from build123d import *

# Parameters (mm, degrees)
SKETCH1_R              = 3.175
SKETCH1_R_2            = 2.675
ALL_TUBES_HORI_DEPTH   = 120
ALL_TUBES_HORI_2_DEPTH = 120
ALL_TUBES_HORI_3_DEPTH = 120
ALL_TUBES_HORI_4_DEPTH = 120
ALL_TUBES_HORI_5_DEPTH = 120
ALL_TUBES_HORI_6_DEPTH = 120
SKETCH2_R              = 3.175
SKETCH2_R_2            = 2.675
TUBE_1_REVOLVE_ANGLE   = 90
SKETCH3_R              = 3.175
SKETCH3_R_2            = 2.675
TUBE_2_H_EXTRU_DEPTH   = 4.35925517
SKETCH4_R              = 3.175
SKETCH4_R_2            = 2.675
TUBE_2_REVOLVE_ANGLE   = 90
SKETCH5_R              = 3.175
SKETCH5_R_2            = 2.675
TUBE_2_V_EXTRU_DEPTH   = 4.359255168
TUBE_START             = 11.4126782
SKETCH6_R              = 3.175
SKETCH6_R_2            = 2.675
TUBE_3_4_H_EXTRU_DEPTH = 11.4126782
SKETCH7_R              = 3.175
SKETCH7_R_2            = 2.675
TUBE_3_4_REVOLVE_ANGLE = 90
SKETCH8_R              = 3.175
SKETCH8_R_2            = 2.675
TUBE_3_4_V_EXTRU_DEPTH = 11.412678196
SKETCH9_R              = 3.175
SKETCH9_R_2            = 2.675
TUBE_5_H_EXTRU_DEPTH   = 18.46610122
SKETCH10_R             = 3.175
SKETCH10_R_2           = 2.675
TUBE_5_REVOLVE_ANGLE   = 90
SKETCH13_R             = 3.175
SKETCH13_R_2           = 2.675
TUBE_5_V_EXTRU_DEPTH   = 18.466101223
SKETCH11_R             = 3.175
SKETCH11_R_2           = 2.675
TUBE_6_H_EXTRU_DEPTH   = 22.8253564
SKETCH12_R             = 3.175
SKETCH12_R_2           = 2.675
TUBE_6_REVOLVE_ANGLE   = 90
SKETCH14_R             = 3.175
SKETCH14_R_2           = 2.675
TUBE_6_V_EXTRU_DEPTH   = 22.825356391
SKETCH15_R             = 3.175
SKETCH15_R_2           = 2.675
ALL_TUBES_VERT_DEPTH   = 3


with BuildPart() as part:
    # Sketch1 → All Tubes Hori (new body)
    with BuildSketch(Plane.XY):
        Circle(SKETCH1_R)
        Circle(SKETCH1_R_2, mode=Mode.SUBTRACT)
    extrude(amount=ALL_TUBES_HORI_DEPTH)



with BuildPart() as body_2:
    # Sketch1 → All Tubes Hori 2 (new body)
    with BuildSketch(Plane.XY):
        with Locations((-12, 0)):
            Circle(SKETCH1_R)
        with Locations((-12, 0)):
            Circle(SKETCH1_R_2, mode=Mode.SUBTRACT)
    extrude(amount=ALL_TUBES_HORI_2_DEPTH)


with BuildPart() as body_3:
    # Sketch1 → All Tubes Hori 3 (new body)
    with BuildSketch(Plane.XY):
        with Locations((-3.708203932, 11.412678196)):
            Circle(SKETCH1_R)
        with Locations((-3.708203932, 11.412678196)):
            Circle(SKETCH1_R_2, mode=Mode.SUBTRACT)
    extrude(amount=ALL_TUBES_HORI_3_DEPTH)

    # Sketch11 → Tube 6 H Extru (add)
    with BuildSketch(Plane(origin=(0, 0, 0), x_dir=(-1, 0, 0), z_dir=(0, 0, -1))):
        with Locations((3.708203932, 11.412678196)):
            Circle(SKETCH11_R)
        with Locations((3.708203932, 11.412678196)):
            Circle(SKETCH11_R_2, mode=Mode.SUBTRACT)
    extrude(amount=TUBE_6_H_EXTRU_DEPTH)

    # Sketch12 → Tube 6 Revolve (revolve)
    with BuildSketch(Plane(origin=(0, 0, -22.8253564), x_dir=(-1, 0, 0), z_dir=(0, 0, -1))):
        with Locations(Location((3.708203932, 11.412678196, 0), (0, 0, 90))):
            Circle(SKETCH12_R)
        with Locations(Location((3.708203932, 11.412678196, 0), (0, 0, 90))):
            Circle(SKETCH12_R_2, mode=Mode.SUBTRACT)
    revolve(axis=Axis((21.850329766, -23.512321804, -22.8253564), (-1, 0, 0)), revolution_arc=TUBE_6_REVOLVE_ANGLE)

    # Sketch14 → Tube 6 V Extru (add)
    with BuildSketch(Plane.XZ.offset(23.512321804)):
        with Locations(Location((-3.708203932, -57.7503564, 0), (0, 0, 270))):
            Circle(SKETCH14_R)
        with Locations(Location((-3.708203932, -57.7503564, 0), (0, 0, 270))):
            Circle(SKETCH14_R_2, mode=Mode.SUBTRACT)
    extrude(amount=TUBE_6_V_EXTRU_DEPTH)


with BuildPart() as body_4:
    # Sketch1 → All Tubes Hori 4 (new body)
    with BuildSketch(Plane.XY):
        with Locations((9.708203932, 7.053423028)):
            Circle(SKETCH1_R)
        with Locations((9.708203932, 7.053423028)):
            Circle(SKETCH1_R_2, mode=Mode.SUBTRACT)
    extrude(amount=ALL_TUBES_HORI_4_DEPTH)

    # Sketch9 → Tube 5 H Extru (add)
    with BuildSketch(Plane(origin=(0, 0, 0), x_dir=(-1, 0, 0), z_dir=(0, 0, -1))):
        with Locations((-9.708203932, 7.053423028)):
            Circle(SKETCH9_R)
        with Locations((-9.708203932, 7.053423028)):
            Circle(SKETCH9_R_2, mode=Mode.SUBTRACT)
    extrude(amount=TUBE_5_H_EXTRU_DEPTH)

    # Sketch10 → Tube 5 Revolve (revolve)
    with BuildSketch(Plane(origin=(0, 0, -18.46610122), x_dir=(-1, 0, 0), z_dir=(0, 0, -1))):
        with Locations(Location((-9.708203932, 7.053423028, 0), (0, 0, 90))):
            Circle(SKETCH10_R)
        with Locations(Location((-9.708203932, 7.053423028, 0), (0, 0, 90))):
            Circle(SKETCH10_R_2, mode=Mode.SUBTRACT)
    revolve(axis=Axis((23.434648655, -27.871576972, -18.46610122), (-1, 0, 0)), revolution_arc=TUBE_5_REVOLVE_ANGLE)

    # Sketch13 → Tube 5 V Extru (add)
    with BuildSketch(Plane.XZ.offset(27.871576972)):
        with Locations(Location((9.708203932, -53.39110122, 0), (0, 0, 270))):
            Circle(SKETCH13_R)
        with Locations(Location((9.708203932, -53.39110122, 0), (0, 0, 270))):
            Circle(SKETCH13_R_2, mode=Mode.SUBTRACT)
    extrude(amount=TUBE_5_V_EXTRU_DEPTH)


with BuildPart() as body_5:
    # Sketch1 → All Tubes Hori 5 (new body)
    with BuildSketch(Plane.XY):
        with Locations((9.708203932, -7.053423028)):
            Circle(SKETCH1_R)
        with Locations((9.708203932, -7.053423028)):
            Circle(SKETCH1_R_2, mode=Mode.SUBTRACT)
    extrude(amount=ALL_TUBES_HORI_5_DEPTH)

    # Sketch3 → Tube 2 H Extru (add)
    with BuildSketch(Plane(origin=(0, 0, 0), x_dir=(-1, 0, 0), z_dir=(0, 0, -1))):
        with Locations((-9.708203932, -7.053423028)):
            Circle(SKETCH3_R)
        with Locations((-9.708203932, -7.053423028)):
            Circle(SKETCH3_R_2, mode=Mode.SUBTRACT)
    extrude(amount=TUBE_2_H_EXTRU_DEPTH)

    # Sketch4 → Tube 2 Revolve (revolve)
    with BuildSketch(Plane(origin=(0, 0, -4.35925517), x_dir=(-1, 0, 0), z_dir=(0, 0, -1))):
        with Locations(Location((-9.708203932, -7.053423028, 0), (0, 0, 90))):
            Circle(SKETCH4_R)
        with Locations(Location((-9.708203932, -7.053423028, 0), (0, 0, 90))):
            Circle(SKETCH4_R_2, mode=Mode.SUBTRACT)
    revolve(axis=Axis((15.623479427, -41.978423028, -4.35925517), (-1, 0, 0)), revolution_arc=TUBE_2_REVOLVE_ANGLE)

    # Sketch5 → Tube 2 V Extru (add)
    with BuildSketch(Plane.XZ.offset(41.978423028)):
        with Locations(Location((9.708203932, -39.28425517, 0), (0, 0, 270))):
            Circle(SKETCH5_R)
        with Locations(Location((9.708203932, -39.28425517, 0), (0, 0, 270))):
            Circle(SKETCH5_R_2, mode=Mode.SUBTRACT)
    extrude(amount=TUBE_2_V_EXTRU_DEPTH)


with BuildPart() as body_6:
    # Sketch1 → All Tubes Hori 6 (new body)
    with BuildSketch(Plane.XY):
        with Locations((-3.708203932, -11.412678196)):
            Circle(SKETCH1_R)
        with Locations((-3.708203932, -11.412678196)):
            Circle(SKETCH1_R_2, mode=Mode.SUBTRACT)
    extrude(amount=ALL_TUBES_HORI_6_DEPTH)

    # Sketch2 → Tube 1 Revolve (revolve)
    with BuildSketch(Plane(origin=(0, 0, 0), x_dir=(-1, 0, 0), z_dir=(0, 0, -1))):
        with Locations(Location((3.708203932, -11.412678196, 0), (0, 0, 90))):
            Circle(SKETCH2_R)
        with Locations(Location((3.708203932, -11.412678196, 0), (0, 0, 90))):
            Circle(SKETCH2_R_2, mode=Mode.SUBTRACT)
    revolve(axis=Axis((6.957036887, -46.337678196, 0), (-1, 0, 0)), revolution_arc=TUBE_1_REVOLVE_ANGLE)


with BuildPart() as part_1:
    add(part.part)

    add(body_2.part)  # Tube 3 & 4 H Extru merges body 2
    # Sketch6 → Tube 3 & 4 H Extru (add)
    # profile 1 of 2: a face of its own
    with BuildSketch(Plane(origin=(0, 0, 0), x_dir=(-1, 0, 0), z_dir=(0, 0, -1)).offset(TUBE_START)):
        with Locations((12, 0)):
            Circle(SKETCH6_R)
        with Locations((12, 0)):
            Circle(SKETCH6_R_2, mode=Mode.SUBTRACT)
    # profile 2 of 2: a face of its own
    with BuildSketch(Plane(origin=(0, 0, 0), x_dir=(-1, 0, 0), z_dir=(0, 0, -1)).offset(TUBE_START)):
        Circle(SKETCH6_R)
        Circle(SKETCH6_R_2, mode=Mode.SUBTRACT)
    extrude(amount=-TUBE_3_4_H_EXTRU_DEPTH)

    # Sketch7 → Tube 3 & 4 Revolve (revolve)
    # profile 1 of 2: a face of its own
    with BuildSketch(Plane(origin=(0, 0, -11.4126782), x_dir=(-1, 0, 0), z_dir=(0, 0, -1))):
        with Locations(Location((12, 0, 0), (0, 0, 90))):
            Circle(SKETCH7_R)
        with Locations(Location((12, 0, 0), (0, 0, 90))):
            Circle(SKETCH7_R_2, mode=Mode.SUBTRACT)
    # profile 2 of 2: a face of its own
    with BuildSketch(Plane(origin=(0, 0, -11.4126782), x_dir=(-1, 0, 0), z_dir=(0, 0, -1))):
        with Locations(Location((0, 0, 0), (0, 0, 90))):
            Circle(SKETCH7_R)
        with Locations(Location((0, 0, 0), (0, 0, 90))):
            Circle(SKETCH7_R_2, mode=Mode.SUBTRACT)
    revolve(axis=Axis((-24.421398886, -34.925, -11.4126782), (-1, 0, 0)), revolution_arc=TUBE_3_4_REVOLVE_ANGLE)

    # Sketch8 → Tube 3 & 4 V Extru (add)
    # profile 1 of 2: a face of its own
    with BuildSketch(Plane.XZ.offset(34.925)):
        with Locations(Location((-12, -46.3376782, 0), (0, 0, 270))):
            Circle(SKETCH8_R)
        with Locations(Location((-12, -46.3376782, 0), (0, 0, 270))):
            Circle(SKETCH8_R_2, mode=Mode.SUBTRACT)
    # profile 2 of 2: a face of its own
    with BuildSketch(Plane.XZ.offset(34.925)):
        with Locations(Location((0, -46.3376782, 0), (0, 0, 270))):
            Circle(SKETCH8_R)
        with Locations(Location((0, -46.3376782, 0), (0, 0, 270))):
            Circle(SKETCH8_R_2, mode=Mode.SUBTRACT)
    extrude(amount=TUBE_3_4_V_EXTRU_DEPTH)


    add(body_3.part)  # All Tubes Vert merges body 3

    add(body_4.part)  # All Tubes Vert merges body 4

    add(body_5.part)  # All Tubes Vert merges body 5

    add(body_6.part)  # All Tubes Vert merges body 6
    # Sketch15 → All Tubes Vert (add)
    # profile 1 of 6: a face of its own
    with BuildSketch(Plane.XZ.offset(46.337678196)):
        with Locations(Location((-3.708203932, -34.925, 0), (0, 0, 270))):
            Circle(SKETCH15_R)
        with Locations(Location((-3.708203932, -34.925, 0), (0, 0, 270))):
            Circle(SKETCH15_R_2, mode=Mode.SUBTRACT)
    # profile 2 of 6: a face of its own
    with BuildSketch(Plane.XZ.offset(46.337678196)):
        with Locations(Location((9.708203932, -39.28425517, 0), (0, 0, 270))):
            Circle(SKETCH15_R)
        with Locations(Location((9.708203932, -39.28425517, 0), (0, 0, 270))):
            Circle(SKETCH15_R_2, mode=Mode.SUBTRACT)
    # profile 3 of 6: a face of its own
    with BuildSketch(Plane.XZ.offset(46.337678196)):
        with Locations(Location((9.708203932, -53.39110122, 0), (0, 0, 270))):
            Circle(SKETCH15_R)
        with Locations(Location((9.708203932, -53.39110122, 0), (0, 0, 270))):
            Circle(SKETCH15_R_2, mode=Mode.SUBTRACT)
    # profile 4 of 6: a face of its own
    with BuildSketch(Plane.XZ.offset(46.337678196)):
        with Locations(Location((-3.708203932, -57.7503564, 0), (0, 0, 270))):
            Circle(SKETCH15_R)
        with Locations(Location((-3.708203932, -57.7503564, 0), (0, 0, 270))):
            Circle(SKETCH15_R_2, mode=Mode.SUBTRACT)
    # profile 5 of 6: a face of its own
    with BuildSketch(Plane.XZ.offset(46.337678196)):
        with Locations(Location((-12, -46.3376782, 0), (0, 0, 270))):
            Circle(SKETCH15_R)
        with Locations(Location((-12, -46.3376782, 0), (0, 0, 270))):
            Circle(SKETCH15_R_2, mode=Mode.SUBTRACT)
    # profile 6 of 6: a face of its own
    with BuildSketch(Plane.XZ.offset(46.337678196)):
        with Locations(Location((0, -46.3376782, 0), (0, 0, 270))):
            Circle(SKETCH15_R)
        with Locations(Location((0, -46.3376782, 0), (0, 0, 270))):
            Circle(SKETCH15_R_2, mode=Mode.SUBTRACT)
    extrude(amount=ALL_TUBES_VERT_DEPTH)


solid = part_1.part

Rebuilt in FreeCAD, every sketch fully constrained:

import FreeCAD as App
import Part
import Sketcher
from FreeCAD import Vector

doc = App.newDocument("Part")
body = doc.addObject("PartDesign::Body", "Body")

sketch1 = body.newObject("Sketcher::SketchObject", "Sketch")
sketch1.AttachmentSupport = (doc.getObject("XY_Plane"), [""])
sketch1.MapMode = "FlatFace"
sketch1.addGeometry([
    Part.Circle(Vector(0, 0, 0), Vector(0, 0, 1), 3.2),
    Part.Circle(Vector(0, 0, 0), Vector(0, 0, 1), 2.7),
], False)
sketch1.addConstraint([
    Sketcher.Constraint("Coincident", 0, 3, -1, 1),
    Sketcher.Constraint("Coincident", 1, 3, -1, 1),
    Sketcher.Constraint("Diameter", 0, 6.35),
    Sketcher.Constraint("Diameter", 1, 5.35),
])
pad1 = body.newObject("PartDesign::Pad", "Pad")
pad1.Profile = sketch1
pad1.Length = 120
body2 = doc.addObject("PartDesign::Body", "Body001")

sketch2 = body2.newObject("Sketcher::SketchObject", "Sketch001")
sketch2.AttachmentSupport = (doc.getObject("XY_Plane001"), [""])
sketch2.MapMode = "FlatFace"
sketch2.addGeometry([
    Part.Circle(Vector(-12, 0, 0), Vector(0, 0, 1), 3.2),
    Part.Circle(Vector(-12, 0, 0), Vector(0, 0, 1), 2.7),
], False)
sketch2.addConstraint([
    Sketcher.Constraint("Coincident", 1, 3, 0, 3),
    Sketcher.Constraint("PointOnObject", 0, 3, -1),
    Sketcher.Constraint("Diameter", 0, 6.35),
    Sketcher.Constraint("Diameter", 1, 5.35),
    Sketcher.Constraint("DistanceX", 0, 3, -1, 1, 12.0),
])
pad2 = body2.newObject("PartDesign::Pad", "Pad001")
pad2.Profile = sketch2
pad2.Length = 120
body3 = doc.addObject("PartDesign::Body", "Body002")

sketch3 = body3.newObject("Sketcher::SketchObject", "Sketch002")
sketch3.AttachmentSupport = (doc.getObject("XY_Plane002"), [""])
sketch3.MapMode = "FlatFace"
sketch3.addGeometry([
    Part.Circle(Vector(-3.7, 11.4, 0), Vector(0, 0, 1), 3.2),
    Part.Circle(Vector(-3.7, 11.4, 0), Vector(0, 0, 1), 2.7),
], False)
sketch3.addConstraint([
    Sketcher.Constraint("Coincident", 1, 3, 0, 3),
    Sketcher.Constraint("Diameter", 0, 6.35),
    Sketcher.Constraint("Diameter", 1, 5.35),
    Sketcher.Constraint("DistanceY", -1, 1, 0, 3, 11.412678),
    Sketcher.Constraint("DistanceX", 0, 3, -1, 1, 3.708204),
])
pad3 = body3.newObject("PartDesign::Pad", "Pad002")
pad3.Profile = sketch3
pad3.Length = 120

sketch4 = body3.newObject("Sketcher::SketchObject", "Sketch003")
sketch4.AttachmentSupport = (doc.getObject("XY_Plane002"), [""])
sketch4.MapMode = "FlatFace"
sketch4.addGeometry([
    Part.Circle(Vector(-3.7, 11.4, 0), Vector(0, 0, 1), 3.2),
    Part.Circle(Vector(-3.7, 11.4, 0), Vector(0, 0, 1), 2.7),
], False)
sketch4.addConstraint([
    Sketcher.Constraint("Coincident", 1, 3, 0, 3),
    Sketcher.Constraint("Diameter", 0, 6.35),
    Sketcher.Constraint("Diameter", 1, 5.35),
    Sketcher.Constraint("DistanceY", -1, 1, 0, 3, 11.412678),
    Sketcher.Constraint("DistanceX", 0, 3, -1, 1, 3.708204),
])
pad4 = body3.newObject("PartDesign::Pad", "Pad003")
pad4.Profile = sketch4
pad4.Length = 22.825356
pad4.Reversed = True

sketch5 = body3.newObject("Sketcher::SketchObject", "Sketch004")
sketch5.AttachmentSupport = (doc.getObject("XY_Plane002"), [""])
sketch5.MapMode = "FlatFace"
sketch5.AttachmentOffset = App.Placement(Vector(0, 0, -22.825356), App.Rotation())
sketch5.addGeometry([
    Part.Circle(Vector(-3.7, 11.4, 0), Vector(0, 0, 1), 3.2),
    Part.Circle(Vector(-3.7, 11.4, 0), Vector(0, 0, 1), 2.7),
], False)
sketch5.addGeometry(Part.LineSegment(Vector(-3.7, -23.5, 0), Vector(-13.7, -23.5, 0)), True)
sketch5.addConstraint([
    Sketcher.Constraint("Horizontal", 2),
    Sketcher.Constraint("Coincident", 1, 3, 0, 3),
    Sketcher.Constraint("Vertical", 1, 3, 2, 1),
    Sketcher.Constraint("Diameter", 0, 6.35),
    Sketcher.Constraint("Diameter", 1, 5.35),
    Sketcher.Constraint("DistanceX", 2, 2, 2, 1, 10.0),
    Sketcher.Constraint("DistanceY", 2, 1, 0, 3, 34.925),
    Sketcher.Constraint("DistanceY", -1, 1, 0, 3, 11.412678),
    Sketcher.Constraint("DistanceX", 0, 3, -1, 1, 3.708204),
])
revolution = body3.newObject("PartDesign::Revolution", "Revolution")
revolution.Profile = sketch5
revolution.ReferenceAxis = (sketch5, ["Axis0"])
revolution.Angle = 90

sketch6 = body3.newObject("Sketcher::SketchObject", "Sketch005")
sketch6.AttachmentSupport = (doc.getObject("XZ_Plane002"), [""])
sketch6.MapMode = "FlatFace"
sketch6.AttachmentOffset = App.Placement(Vector(0, 0, 23.512322), App.Rotation())
sketch6.addGeometry([
    Part.Circle(Vector(-3.7, -57.8, 0), Vector(0, 0, 1), 3.2),
    Part.Circle(Vector(-3.7, -57.8, 0), Vector(0, 0, 1), 2.7),
], False)
sketch6.addConstraint([
    Sketcher.Constraint("Coincident", 1, 3, 0, 3),
    Sketcher.Constraint("Diameter", 0, 6.35),
    Sketcher.Constraint("Diameter", 1, 5.35),
    Sketcher.Constraint("DistanceX", 0, 3, -1, 1, 3.708204),
    Sketcher.Constraint("DistanceY", 0, 3, -1, 1, 57.750356),
])
pad5 = body3.newObject("PartDesign::Pad", "Pad004")
pad5.Profile = sketch6
pad5.Length = 22.825356
body4 = doc.addObject("PartDesign::Body", "Body003")

sketch7 = body4.newObject("Sketcher::SketchObject", "Sketch006")
sketch7.AttachmentSupport = (doc.getObject("XY_Plane003"), [""])
sketch7.MapMode = "FlatFace"
sketch7.addGeometry([
    Part.Circle(Vector(9.7, 7.1, 0), Vector(0, 0, 1), 3.2),
    Part.Circle(Vector(9.7, 7.1, 0), Vector(0, 0, 1), 2.7),
], False)
sketch7.addConstraint([
    Sketcher.Constraint("Coincident", 1, 3, 0, 3),
    Sketcher.Constraint("Diameter", 0, 6.35),
    Sketcher.Constraint("Diameter", 1, 5.35),
    Sketcher.Constraint("DistanceX", -1, 1, 0, 3, 9.708204),
    Sketcher.Constraint("DistanceY", -1, 1, 0, 3, 7.053423),
])
pad6 = body4.newObject("PartDesign::Pad", "Pad005")
pad6.Profile = sketch7
pad6.Length = 120

sketch8 = body4.newObject("Sketcher::SketchObject", "Sketch007")
sketch8.AttachmentSupport = (doc.getObject("XY_Plane003"), [""])
sketch8.MapMode = "FlatFace"
sketch8.addGeometry([
    Part.Circle(Vector(9.7, 7.1, 0), Vector(0, 0, 1), 3.2),
    Part.Circle(Vector(9.7, 7.1, 0), Vector(0, 0, 1), 2.7),
], False)
sketch8.addConstraint([
    Sketcher.Constraint("Coincident", 1, 3, 0, 3),
    Sketcher.Constraint("Diameter", 0, 6.35),
    Sketcher.Constraint("Diameter", 1, 5.35),
    Sketcher.Constraint("DistanceX", -1, 1, 0, 3, 9.708204),
    Sketcher.Constraint("DistanceY", -1, 1, 0, 3, 7.053423),
])
pad7 = body4.newObject("PartDesign::Pad", "Pad006")
pad7.Profile = sketch8
pad7.Length = 18.466101
pad7.Reversed = True

sketch9 = body4.newObject("Sketcher::SketchObject", "Sketch008")
sketch9.AttachmentSupport = (doc.getObject("XY_Plane003"), [""])
sketch9.MapMode = "FlatFace"
sketch9.AttachmentOffset = App.Placement(Vector(0, 0, -18.466101), App.Rotation())
sketch9.addGeometry([
    Part.Circle(Vector(9.7, 7.1, 0), Vector(0, 0, 1), 3.2),
    Part.Circle(Vector(9.7, 7.1, 0), Vector(0, 0, 1), 2.7),
], False)
sketch9.addGeometry(Part.LineSegment(Vector(9.7, -27.9, 0), Vector(-0.3, -27.9, 0)), True)
sketch9.addConstraint([
    Sketcher.Constraint("Horizontal", 2),
    Sketcher.Constraint("Coincident", 1, 3, 0, 3),
    Sketcher.Constraint("Vertical", 1, 3, 2, 1),
    Sketcher.Constraint("Diameter", 0, 6.35),
    Sketcher.Constraint("Diameter", 1, 5.35),
    Sketcher.Constraint("DistanceX", 2, 2, 2, 1, 10.0),
    Sketcher.Constraint("DistanceY", 2, 1, 0, 3, 34.925),
    Sketcher.Constraint("DistanceX", -1, 1, 0, 3, 9.708204),
    Sketcher.Constraint("DistanceY", -1, 1, 0, 3, 7.053423),
])
revolution2 = body4.newObject("PartDesign::Revolution", "Revolution001")
revolution2.Profile = sketch9
revolution2.ReferenceAxis = (sketch9, ["Axis0"])
revolution2.Angle = 90

sketch10 = body4.newObject("Sketcher::SketchObject", "Sketch009")
sketch10.AttachmentSupport = (doc.getObject("XZ_Plane003"), [""])
sketch10.MapMode = "FlatFace"
sketch10.AttachmentOffset = App.Placement(Vector(0, 0, 27.871577), App.Rotation())
sketch10.addGeometry([
    Part.Circle(Vector(9.7, -53.4, 0), Vector(0, 0, 1), 3.2),
    Part.Circle(Vector(9.7, -53.4, 0), Vector(0, 0, 1), 2.7),
], False)
sketch10.addConstraint([
    Sketcher.Constraint("Coincident", 1, 3, 0, 3),
    Sketcher.Constraint("Diameter", 0, 6.35),
    Sketcher.Constraint("Diameter", 1, 5.35),
    Sketcher.Constraint("DistanceY", 0, 3, -1, 1, 53.391101),
    Sketcher.Constraint("DistanceX", -1, 1, 0, 3, 9.708204),
])
pad8 = body4.newObject("PartDesign::Pad", "Pad007")
pad8.Profile = sketch10
pad8.Length = 18.466101
body5 = doc.addObject("PartDesign::Body", "Body004")

sketch11 = body5.newObject("Sketcher::SketchObject", "Sketch010")
sketch11.AttachmentSupport = (doc.getObject("XY_Plane004"), [""])
sketch11.MapMode = "FlatFace"
sketch11.addGeometry([
    Part.Circle(Vector(9.7, -7.1, 0), Vector(0, 0, 1), 3.2),
    Part.Circle(Vector(9.7, -7.1, 0), Vector(0, 0, 1), 2.7),
], False)
sketch11.addConstraint([
    Sketcher.Constraint("Coincident", 1, 3, 0, 3),
    Sketcher.Constraint("Diameter", 0, 6.35),
    Sketcher.Constraint("Diameter", 1, 5.35),
    Sketcher.Constraint("DistanceX", -1, 1, 0, 3, 9.708204),
    Sketcher.Constraint("DistanceY", 0, 3, -1, 1, 7.053423),
])
pad9 = body5.newObject("PartDesign::Pad", "Pad008")
pad9.Profile = sketch11
pad9.Length = 120

sketch12 = body5.newObject("Sketcher::SketchObject", "Sketch011")
sketch12.AttachmentSupport = (doc.getObject("XY_Plane004"), [""])
sketch12.MapMode = "FlatFace"
sketch12.addGeometry([
    Part.Circle(Vector(9.7, -7.1, 0), Vector(0, 0, 1), 3.2),
    Part.Circle(Vector(9.7, -7.1, 0), Vector(0, 0, 1), 2.7),
], False)
sketch12.addConstraint([
    Sketcher.Constraint("Coincident", 1, 3, 0, 3),
    Sketcher.Constraint("Diameter", 0, 6.35),
    Sketcher.Constraint("Diameter", 1, 5.35),
    Sketcher.Constraint("DistanceX", -1, 1, 0, 3, 9.708204),
    Sketcher.Constraint("DistanceY", 0, 3, -1, 1, 7.053423),
])
pad10 = body5.newObject("PartDesign::Pad", "Pad009")
pad10.Profile = sketch12
pad10.Length = 4.359255
pad10.Reversed = True

sketch13 = body5.newObject("Sketcher::SketchObject", "Sketch012")
sketch13.AttachmentSupport = (doc.getObject("XY_Plane004"), [""])
sketch13.MapMode = "FlatFace"
sketch13.AttachmentOffset = App.Placement(Vector(0, 0, -4.359255), App.Rotation())
sketch13.addGeometry([
    Part.Circle(Vector(9.7, -7.1, 0), Vector(0, 0, 1), 3.2),
    Part.Circle(Vector(9.7, -7.1, 0), Vector(0, 0, 1), 2.7),
], False)
sketch13.addGeometry(Part.LineSegment(Vector(9.7, -42, 0), Vector(-0.3, -42, 0)), True)
sketch13.addConstraint([
    Sketcher.Constraint("Horizontal", 2),
    Sketcher.Constraint("Coincident", 1, 3, 0, 3),
    Sketcher.Constraint("Vertical", 1, 3, 2, 1),
    Sketcher.Constraint("Diameter", 0, 6.35),
    Sketcher.Constraint("Diameter", 1, 5.35),
    Sketcher.Constraint("DistanceX", 2, 2, 2, 1, 10.0),
    Sketcher.Constraint("DistanceY", 2, 1, 0, 3, 34.925),
    Sketcher.Constraint("DistanceX", -1, 1, 0, 3, 9.708204),
    Sketcher.Constraint("DistanceY", 0, 3, -1, 1, 7.053423),
])
revolution3 = body5.newObject("PartDesign::Revolution", "Revolution002")
revolution3.Profile = sketch13
revolution3.ReferenceAxis = (sketch13, ["Axis0"])
revolution3.Angle = 90

sketch14 = body5.newObject("Sketcher::SketchObject", "Sketch013")
sketch14.AttachmentSupport = (doc.getObject("XZ_Plane004"), [""])
sketch14.MapMode = "FlatFace"
sketch14.AttachmentOffset = App.Placement(Vector(0, 0, 41.978423), App.Rotation())
sketch14.addGeometry([
    Part.Circle(Vector(9.7, -39.3, 0), Vector(0, 0, 1), 3.2),
    Part.Circle(Vector(9.7, -39.3, 0), Vector(0, 0, 1), 2.7),
], False)
sketch14.addConstraint([
    Sketcher.Constraint("Coincident", 1, 3, 0, 3),
    Sketcher.Constraint("Diameter", 0, 6.35),
    Sketcher.Constraint("Diameter", 1, 5.35),
    Sketcher.Constraint("DistanceX", -1, 1, 0, 3, 9.708204),
    Sketcher.Constraint("DistanceY", 0, 3, -1, 1, 39.284255),
])
pad11 = body5.newObject("PartDesign::Pad", "Pad010")
pad11.Profile = sketch14
pad11.Length = 4.359255
body6 = doc.addObject("PartDesign::Body", "Body005")

sketch15 = body6.newObject("Sketcher::SketchObject", "Sketch014")
sketch15.AttachmentSupport = (doc.getObject("XY_Plane005"), [""])
sketch15.MapMode = "FlatFace"
sketch15.addGeometry([
    Part.Circle(Vector(-3.7, -11.4, 0), Vector(0, 0, 1), 3.2),
    Part.Circle(Vector(-3.7, -11.4, 0), Vector(0, 0, 1), 2.7),
], False)
sketch15.addConstraint([
    Sketcher.Constraint("Coincident", 1, 3, 0, 3),
    Sketcher.Constraint("Diameter", 0, 6.35),
    Sketcher.Constraint("Diameter", 1, 5.35),
    Sketcher.Constraint("DistanceY", 0, 3, -1, 1, 11.412678),
    Sketcher.Constraint("DistanceX", 0, 3, -1, 1, 3.708204),
])
pad12 = body6.newObject("PartDesign::Pad", "Pad011")
pad12.Profile = sketch15
pad12.Length = 120

sketch16 = body6.newObject("Sketcher::SketchObject", "Sketch015")
sketch16.AttachmentSupport = (doc.getObject("XY_Plane005"), [""])
sketch16.MapMode = "FlatFace"
sketch16.addGeometry([
    Part.Circle(Vector(-3.7, -11.4, 0), Vector(0, 0, 1), 3.2),
    Part.Circle(Vector(-3.7, -11.4, 0), Vector(0, 0, 1), 2.7),
], False)
sketch16.addGeometry(Part.LineSegment(Vector(-3.7, -46.3, 0), Vector(-13.7, -46.3, 0)), True)
sketch16.addConstraint([
    Sketcher.Constraint("Horizontal", 2),
    Sketcher.Constraint("Coincident", 1, 3, 0, 3),
    Sketcher.Constraint("Vertical", 1, 3, 2, 1),
    Sketcher.Constraint("Diameter", 0, 6.35),
    Sketcher.Constraint("Diameter", 1, 5.35),
    Sketcher.Constraint("DistanceX", 2, 2, 2, 1, 10.0),
    Sketcher.Constraint("DistanceY", 2, 1, 0, 3, 34.925),
    Sketcher.Constraint("DistanceY", 0, 3, -1, 1, 11.412678),
    Sketcher.Constraint("DistanceX", 0, 3, -1, 1, 3.708204),
])
revolution4 = body6.newObject("PartDesign::Revolution", "Revolution003")
revolution4.Profile = sketch16
revolution4.ReferenceAxis = (sketch16, ["Axis0"])
revolution4.Angle = 90
body.AllowCompound = True
doc.recompute()

boolean = body.newObject("PartDesign::Boolean", "Boolean")
boolean.Type = "Fuse"
boolean.addObjects([body2])

sketch17 = body.newObject("Sketcher::SketchObject", "Sketch016")
sketch17.AttachmentSupport = (doc.getObject("XY_Plane"), [""])
sketch17.MapMode = "FlatFace"
sketch17.AttachmentOffset = App.Placement(Vector(0, 0, -11.412678), App.Rotation())
sketch17.addGeometry([
    Part.Circle(Vector(-12, 0, 0), Vector(0, 0, 1), 3.2),
    Part.Circle(Vector(-12, 0, 0), Vector(0, 0, 1), 2.7),
    Part.Circle(Vector(0, 0, 0), Vector(0, 0, 1), 3.2),
    Part.Circle(Vector(0, 0, 0), Vector(0, 0, 1), 2.7),
], False)
sketch17.addConstraint([
    Sketcher.Constraint("Coincident", 2, 3, -1, 1),
    Sketcher.Constraint("Coincident", 3, 3, -1, 1),
    Sketcher.Constraint("Coincident", 1, 3, 0, 3),
    Sketcher.Constraint("Equal", 0, 2),
    Sketcher.Constraint("Equal", 1, 3),
    Sketcher.Constraint("PointOnObject", 0, 3, -1),
    Sketcher.Constraint("Diameter", 0, 6.35),
    Sketcher.Constraint("Diameter", 1, 5.35),
    Sketcher.Constraint("DistanceX", 0, 3, -1, 1, 12.0),
])
pad13 = body.newObject("PartDesign::Pad", "Pad012")
pad13.Profile = sketch17
pad13.Length = 11.412678

sketch18 = body.newObject("Sketcher::SketchObject", "Sketch017")
sketch18.AttachmentSupport = (doc.getObject("XY_Plane"), [""])
sketch18.MapMode = "FlatFace"
sketch18.AttachmentOffset = App.Placement(Vector(0, 0, -11.412678), App.Rotation())
sketch18.addGeometry([
    Part.Circle(Vector(-12, 0, 0), Vector(0, 0, 1), 3.2),
    Part.Circle(Vector(-12, 0, 0), Vector(0, 0, 1), 2.7),
    Part.Circle(Vector(0, 0, 0), Vector(0, 0, 1), 3.2),
    Part.Circle(Vector(0, 0, 0), Vector(0, 0, 1), 2.7),
], False)
sketch18.addGeometry(Part.LineSegment(Vector(0, -34.9, 0), Vector(-12, -34.9, 0)), True)
sketch18.addConstraint([
    Sketcher.Constraint("Horizontal", 4),
    Sketcher.Constraint("Coincident", 2, 3, -1, 1),
    Sketcher.Constraint("Coincident", 3, 3, -1, 1),
    Sketcher.Constraint("Coincident", 1, 3, 0, 3),
    Sketcher.Constraint("Equal", 0, 2),
    Sketcher.Constraint("Equal", 1, 3),
    Sketcher.Constraint("PointOnObject", 0, 3, -1),
    Sketcher.Constraint("PointOnObject", 4, 1, -2),
    Sketcher.Constraint("Vertical", 1, 3, 4, 2),
    Sketcher.Constraint("Diameter", 0, 6.35),
    Sketcher.Constraint("Diameter", 1, 5.35),
    Sketcher.Constraint("DistanceX", 4, 2, 4, 1, 12.0),
    Sketcher.Constraint("DistanceY", 4, 1, -1, 1, 34.925),
])
revolution5 = body.newObject("PartDesign::Revolution", "Revolution004")
revolution5.Profile = sketch18
revolution5.ReferenceAxis = (sketch18, ["Axis0"])
revolution5.Angle = 90

sketch19 = body.newObject("Sketcher::SketchObject", "Sketch018")
sketch19.AttachmentSupport = (doc.getObject("XZ_Plane"), [""])
sketch19.MapMode = "FlatFace"
sketch19.AttachmentOffset = App.Placement(Vector(0, 0, 34.925), App.Rotation())
sketch19.addGeometry([
    Part.Circle(Vector(-12, -46.3, 0), Vector(0, 0, 1), 3.2),
    Part.Circle(Vector(-12, -46.3, 0), Vector(0, 0, 1), 2.7),
    Part.Circle(Vector(0, -46.3, 0), Vector(0, 0, 1), 3.2),
    Part.Circle(Vector(0, -46.3, 0), Vector(0, 0, 1), 2.7),
], False)
sketch19.addConstraint([
    Sketcher.Constraint("Coincident", 1, 3, 0, 3),
    Sketcher.Constraint("Coincident", 3, 3, 2, 3),
    Sketcher.Constraint("Equal", 0, 2),
    Sketcher.Constraint("Equal", 1, 3),
    Sketcher.Constraint("PointOnObject", 2, 3, -2),
    Sketcher.Constraint("Horizontal", 1, 3, 2, 3),
    Sketcher.Constraint("Diameter", 0, 6.35),
    Sketcher.Constraint("Diameter", 1, 5.35),
    Sketcher.Constraint("DistanceX", 0, 3, -1, 1, 12.0),
    Sketcher.Constraint("DistanceY", 0, 3, -1, 1, 46.337678),
])
pad14 = body.newObject("PartDesign::Pad", "Pad013")
pad14.Profile = sketch19
pad14.Length = 11.412678
doc.recompute()

boolean2 = body.newObject("PartDesign::Boolean", "Boolean001")
boolean2.Type = "Fuse"
boolean2.addObjects([body3])
doc.recompute()

boolean3 = body.newObject("PartDesign::Boolean", "Boolean002")
boolean3.Type = "Fuse"
boolean3.addObjects([body4])
doc.recompute()

boolean4 = body.newObject("PartDesign::Boolean", "Boolean003")
boolean4.Type = "Fuse"
boolean4.addObjects([body5])
doc.recompute()

boolean5 = body.newObject("PartDesign::Boolean", "Boolean004")
boolean5.Type = "Fuse"
boolean5.addObjects([body6])

sketch20 = body.newObject("Sketcher::SketchObject", "Sketch019")
sketch20.AttachmentSupport = (doc.getObject("XZ_Plane"), [""])
sketch20.MapMode = "FlatFace"
sketch20.AttachmentOffset = App.Placement(Vector(0, 0, 46.337678), App.Rotation())
sketch20.addGeometry([
    Part.Circle(Vector(-3.7, -34.9, 0), Vector(0, 0, 1), 3.2),
    Part.Circle(Vector(-3.7, -34.9, 0), Vector(0, 0, 1), 2.7),
    Part.Circle(Vector(9.7, -39.3, 0), Vector(0, 0, 1), 3.2),
    Part.Circle(Vector(9.7, -39.3, 0), Vector(0, 0, 1), 2.7),
    Part.Circle(Vector(9.7, -53.4, 0), Vector(0, 0, 1), 3.2),
    Part.Circle(Vector(9.7, -53.4, 0), Vector(0, 0, 1), 2.7),
    Part.Circle(Vector(-3.7, -57.8, 0), Vector(0, 0, 1), 3.2),
    Part.Circle(Vector(-3.7, -57.8, 0), Vector(0, 0, 1), 2.7),
    Part.Circle(Vector(-12, -46.3, 0), Vector(0, 0, 1), 3.2),
    Part.Circle(Vector(-12, -46.3, 0), Vector(0, 0, 1), 2.7),
    Part.Circle(Vector(0, -46.3, 0), Vector(0, 0, 1), 3.2),
    Part.Circle(Vector(0, -46.3, 0), Vector(0, 0, 1), 2.7),
], False)
sketch20.addConstraint([
    Sketcher.Constraint("Coincident", 1, 3, 0, 3),
    Sketcher.Constraint("Coincident", 3, 3, 2, 3),
    Sketcher.Constraint("Coincident", 5, 3, 4, 3),
    Sketcher.Constraint("Coincident", 7, 3, 6, 3),
    Sketcher.Constraint("Coincident", 9, 3, 8, 3),
    Sketcher.Constraint("Coincident", 11, 3, 10, 3),
    Sketcher.Constraint("Equal", 0, 2),
    Sketcher.Constraint("Equal", 1, 3),
    Sketcher.Constraint("Equal", 2, 4),
    Sketcher.Constraint("Equal", 3, 5),
    Sketcher.Constraint("Equal", 4, 6),
    Sketcher.Constraint("Equal", 5, 7),
    Sketcher.Constraint("Equal", 6, 8),
    Sketcher.Constraint("Equal", 7, 9),
    Sketcher.Constraint("Equal", 8, 10),
    Sketcher.Constraint("Equal", 9, 11),
    Sketcher.Constraint("PointOnObject", 10, 3, -2),
    Sketcher.Constraint("Horizontal", 9, 3, 10, 3),
    Sketcher.Constraint("Vertical", 3, 3, 4, 3),
    Sketcher.Constraint("Vertical", 1, 3, 6, 3),
    Sketcher.Constraint("Diameter", 0, 6.35),
    Sketcher.Constraint("Diameter", 1, 5.35),
    Sketcher.Constraint("DistanceX", 8, 3, -1, 1, 12.0),
    Sketcher.Constraint("DistanceY", 0, 3, -1, 1, 34.925),
    Sketcher.Constraint("DistanceY", 4, 3, -1, 1, 53.391101),
    Sketcher.Constraint("DistanceY", 6, 3, 2, 3, 18.466101),
    Sketcher.Constraint("DistanceY", 8, 3, -1, 1, 46.337678),
    Sketcher.Constraint("DistanceY", 6, 3, 8, 3, 11.412678),
    Sketcher.Constraint("DistanceX", 0, 3, -1, 1, 3.708204),
    Sketcher.Constraint("DistanceX", -1, 1, 2, 3, 9.708204),
])
pad15 = body.newObject("PartDesign::Pad", "Pad014")
pad15.Profile = sketch20
pad15.Length = 3

doc.recompute()
